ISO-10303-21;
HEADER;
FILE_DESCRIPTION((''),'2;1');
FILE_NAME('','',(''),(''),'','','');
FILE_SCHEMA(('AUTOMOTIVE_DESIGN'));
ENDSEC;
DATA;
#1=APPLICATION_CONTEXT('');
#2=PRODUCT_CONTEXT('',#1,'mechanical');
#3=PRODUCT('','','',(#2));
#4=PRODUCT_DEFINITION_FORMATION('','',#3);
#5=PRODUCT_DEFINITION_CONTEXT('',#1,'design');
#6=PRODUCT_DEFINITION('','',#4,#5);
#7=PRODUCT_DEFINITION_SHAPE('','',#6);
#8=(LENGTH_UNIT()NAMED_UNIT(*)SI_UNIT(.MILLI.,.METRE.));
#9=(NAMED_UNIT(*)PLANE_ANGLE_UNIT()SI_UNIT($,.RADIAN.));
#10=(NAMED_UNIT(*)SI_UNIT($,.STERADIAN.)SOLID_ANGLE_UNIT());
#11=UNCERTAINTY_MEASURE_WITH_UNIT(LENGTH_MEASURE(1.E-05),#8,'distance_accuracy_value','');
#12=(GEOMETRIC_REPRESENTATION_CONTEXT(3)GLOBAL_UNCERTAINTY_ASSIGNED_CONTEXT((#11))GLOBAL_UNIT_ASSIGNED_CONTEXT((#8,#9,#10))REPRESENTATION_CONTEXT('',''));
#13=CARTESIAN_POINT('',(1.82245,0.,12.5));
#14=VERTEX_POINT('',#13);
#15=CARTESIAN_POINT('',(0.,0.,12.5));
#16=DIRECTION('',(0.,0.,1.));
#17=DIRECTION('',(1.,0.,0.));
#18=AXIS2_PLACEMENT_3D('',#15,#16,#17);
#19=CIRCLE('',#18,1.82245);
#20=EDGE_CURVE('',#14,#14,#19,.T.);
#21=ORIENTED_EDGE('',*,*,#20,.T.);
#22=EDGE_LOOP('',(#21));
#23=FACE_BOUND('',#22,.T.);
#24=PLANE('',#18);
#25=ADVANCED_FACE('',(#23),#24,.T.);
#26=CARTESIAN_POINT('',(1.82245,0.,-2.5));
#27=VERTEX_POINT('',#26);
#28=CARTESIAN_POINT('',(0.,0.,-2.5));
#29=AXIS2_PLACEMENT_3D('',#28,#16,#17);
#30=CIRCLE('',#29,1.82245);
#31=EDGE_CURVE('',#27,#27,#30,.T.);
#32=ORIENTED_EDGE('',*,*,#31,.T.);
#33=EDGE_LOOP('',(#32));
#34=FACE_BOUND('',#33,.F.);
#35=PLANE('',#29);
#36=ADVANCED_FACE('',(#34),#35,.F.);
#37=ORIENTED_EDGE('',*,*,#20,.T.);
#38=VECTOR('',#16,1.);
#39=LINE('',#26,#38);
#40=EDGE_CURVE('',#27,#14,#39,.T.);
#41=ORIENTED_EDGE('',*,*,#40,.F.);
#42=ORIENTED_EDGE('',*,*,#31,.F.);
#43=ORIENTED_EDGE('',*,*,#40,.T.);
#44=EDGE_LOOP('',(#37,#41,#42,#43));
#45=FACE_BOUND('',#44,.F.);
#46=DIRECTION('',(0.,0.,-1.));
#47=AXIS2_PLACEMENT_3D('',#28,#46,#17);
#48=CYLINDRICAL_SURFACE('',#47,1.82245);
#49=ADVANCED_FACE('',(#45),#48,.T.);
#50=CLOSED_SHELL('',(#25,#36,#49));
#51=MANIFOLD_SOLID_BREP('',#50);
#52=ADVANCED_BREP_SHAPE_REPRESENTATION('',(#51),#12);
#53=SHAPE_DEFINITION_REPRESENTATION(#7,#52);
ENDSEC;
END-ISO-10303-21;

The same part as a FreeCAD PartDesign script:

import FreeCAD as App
import Part
import Sketcher

V = App.Vector
Q = App.Units.Quantity

doc = App.newDocument("Part")
body = doc.addObject("PartDesign::Body", "Body")

# Sketch on XY plane
sketch1 = body.newObject("Sketcher::SketchObject", "Sketch")
sketch1.AttachmentSupport = (doc.getObject("XY_Plane"), [""])
sketch1.MapMode = "FlatFace"
sketch1.AttachmentOffset = App.Placement(V(0, 0, -2.5), App.Rotation())
sketch1.addGeometry(Part.Circle(V(0, 0, 0), V(0, 0, 1), 1.8), False)
sketch1.addConstraint(Sketcher.Constraint("Coincident", 0, 3, -1, 1))
sketch1.addConstraint(Sketcher.Constraint("Diameter", 0, Q("3.6449 mm")))
pad1 = body.newObject("PartDesign::Pad", "Pad")
pad1.Profile = sketch1
pad1.Length = 15

doc.recompute()
